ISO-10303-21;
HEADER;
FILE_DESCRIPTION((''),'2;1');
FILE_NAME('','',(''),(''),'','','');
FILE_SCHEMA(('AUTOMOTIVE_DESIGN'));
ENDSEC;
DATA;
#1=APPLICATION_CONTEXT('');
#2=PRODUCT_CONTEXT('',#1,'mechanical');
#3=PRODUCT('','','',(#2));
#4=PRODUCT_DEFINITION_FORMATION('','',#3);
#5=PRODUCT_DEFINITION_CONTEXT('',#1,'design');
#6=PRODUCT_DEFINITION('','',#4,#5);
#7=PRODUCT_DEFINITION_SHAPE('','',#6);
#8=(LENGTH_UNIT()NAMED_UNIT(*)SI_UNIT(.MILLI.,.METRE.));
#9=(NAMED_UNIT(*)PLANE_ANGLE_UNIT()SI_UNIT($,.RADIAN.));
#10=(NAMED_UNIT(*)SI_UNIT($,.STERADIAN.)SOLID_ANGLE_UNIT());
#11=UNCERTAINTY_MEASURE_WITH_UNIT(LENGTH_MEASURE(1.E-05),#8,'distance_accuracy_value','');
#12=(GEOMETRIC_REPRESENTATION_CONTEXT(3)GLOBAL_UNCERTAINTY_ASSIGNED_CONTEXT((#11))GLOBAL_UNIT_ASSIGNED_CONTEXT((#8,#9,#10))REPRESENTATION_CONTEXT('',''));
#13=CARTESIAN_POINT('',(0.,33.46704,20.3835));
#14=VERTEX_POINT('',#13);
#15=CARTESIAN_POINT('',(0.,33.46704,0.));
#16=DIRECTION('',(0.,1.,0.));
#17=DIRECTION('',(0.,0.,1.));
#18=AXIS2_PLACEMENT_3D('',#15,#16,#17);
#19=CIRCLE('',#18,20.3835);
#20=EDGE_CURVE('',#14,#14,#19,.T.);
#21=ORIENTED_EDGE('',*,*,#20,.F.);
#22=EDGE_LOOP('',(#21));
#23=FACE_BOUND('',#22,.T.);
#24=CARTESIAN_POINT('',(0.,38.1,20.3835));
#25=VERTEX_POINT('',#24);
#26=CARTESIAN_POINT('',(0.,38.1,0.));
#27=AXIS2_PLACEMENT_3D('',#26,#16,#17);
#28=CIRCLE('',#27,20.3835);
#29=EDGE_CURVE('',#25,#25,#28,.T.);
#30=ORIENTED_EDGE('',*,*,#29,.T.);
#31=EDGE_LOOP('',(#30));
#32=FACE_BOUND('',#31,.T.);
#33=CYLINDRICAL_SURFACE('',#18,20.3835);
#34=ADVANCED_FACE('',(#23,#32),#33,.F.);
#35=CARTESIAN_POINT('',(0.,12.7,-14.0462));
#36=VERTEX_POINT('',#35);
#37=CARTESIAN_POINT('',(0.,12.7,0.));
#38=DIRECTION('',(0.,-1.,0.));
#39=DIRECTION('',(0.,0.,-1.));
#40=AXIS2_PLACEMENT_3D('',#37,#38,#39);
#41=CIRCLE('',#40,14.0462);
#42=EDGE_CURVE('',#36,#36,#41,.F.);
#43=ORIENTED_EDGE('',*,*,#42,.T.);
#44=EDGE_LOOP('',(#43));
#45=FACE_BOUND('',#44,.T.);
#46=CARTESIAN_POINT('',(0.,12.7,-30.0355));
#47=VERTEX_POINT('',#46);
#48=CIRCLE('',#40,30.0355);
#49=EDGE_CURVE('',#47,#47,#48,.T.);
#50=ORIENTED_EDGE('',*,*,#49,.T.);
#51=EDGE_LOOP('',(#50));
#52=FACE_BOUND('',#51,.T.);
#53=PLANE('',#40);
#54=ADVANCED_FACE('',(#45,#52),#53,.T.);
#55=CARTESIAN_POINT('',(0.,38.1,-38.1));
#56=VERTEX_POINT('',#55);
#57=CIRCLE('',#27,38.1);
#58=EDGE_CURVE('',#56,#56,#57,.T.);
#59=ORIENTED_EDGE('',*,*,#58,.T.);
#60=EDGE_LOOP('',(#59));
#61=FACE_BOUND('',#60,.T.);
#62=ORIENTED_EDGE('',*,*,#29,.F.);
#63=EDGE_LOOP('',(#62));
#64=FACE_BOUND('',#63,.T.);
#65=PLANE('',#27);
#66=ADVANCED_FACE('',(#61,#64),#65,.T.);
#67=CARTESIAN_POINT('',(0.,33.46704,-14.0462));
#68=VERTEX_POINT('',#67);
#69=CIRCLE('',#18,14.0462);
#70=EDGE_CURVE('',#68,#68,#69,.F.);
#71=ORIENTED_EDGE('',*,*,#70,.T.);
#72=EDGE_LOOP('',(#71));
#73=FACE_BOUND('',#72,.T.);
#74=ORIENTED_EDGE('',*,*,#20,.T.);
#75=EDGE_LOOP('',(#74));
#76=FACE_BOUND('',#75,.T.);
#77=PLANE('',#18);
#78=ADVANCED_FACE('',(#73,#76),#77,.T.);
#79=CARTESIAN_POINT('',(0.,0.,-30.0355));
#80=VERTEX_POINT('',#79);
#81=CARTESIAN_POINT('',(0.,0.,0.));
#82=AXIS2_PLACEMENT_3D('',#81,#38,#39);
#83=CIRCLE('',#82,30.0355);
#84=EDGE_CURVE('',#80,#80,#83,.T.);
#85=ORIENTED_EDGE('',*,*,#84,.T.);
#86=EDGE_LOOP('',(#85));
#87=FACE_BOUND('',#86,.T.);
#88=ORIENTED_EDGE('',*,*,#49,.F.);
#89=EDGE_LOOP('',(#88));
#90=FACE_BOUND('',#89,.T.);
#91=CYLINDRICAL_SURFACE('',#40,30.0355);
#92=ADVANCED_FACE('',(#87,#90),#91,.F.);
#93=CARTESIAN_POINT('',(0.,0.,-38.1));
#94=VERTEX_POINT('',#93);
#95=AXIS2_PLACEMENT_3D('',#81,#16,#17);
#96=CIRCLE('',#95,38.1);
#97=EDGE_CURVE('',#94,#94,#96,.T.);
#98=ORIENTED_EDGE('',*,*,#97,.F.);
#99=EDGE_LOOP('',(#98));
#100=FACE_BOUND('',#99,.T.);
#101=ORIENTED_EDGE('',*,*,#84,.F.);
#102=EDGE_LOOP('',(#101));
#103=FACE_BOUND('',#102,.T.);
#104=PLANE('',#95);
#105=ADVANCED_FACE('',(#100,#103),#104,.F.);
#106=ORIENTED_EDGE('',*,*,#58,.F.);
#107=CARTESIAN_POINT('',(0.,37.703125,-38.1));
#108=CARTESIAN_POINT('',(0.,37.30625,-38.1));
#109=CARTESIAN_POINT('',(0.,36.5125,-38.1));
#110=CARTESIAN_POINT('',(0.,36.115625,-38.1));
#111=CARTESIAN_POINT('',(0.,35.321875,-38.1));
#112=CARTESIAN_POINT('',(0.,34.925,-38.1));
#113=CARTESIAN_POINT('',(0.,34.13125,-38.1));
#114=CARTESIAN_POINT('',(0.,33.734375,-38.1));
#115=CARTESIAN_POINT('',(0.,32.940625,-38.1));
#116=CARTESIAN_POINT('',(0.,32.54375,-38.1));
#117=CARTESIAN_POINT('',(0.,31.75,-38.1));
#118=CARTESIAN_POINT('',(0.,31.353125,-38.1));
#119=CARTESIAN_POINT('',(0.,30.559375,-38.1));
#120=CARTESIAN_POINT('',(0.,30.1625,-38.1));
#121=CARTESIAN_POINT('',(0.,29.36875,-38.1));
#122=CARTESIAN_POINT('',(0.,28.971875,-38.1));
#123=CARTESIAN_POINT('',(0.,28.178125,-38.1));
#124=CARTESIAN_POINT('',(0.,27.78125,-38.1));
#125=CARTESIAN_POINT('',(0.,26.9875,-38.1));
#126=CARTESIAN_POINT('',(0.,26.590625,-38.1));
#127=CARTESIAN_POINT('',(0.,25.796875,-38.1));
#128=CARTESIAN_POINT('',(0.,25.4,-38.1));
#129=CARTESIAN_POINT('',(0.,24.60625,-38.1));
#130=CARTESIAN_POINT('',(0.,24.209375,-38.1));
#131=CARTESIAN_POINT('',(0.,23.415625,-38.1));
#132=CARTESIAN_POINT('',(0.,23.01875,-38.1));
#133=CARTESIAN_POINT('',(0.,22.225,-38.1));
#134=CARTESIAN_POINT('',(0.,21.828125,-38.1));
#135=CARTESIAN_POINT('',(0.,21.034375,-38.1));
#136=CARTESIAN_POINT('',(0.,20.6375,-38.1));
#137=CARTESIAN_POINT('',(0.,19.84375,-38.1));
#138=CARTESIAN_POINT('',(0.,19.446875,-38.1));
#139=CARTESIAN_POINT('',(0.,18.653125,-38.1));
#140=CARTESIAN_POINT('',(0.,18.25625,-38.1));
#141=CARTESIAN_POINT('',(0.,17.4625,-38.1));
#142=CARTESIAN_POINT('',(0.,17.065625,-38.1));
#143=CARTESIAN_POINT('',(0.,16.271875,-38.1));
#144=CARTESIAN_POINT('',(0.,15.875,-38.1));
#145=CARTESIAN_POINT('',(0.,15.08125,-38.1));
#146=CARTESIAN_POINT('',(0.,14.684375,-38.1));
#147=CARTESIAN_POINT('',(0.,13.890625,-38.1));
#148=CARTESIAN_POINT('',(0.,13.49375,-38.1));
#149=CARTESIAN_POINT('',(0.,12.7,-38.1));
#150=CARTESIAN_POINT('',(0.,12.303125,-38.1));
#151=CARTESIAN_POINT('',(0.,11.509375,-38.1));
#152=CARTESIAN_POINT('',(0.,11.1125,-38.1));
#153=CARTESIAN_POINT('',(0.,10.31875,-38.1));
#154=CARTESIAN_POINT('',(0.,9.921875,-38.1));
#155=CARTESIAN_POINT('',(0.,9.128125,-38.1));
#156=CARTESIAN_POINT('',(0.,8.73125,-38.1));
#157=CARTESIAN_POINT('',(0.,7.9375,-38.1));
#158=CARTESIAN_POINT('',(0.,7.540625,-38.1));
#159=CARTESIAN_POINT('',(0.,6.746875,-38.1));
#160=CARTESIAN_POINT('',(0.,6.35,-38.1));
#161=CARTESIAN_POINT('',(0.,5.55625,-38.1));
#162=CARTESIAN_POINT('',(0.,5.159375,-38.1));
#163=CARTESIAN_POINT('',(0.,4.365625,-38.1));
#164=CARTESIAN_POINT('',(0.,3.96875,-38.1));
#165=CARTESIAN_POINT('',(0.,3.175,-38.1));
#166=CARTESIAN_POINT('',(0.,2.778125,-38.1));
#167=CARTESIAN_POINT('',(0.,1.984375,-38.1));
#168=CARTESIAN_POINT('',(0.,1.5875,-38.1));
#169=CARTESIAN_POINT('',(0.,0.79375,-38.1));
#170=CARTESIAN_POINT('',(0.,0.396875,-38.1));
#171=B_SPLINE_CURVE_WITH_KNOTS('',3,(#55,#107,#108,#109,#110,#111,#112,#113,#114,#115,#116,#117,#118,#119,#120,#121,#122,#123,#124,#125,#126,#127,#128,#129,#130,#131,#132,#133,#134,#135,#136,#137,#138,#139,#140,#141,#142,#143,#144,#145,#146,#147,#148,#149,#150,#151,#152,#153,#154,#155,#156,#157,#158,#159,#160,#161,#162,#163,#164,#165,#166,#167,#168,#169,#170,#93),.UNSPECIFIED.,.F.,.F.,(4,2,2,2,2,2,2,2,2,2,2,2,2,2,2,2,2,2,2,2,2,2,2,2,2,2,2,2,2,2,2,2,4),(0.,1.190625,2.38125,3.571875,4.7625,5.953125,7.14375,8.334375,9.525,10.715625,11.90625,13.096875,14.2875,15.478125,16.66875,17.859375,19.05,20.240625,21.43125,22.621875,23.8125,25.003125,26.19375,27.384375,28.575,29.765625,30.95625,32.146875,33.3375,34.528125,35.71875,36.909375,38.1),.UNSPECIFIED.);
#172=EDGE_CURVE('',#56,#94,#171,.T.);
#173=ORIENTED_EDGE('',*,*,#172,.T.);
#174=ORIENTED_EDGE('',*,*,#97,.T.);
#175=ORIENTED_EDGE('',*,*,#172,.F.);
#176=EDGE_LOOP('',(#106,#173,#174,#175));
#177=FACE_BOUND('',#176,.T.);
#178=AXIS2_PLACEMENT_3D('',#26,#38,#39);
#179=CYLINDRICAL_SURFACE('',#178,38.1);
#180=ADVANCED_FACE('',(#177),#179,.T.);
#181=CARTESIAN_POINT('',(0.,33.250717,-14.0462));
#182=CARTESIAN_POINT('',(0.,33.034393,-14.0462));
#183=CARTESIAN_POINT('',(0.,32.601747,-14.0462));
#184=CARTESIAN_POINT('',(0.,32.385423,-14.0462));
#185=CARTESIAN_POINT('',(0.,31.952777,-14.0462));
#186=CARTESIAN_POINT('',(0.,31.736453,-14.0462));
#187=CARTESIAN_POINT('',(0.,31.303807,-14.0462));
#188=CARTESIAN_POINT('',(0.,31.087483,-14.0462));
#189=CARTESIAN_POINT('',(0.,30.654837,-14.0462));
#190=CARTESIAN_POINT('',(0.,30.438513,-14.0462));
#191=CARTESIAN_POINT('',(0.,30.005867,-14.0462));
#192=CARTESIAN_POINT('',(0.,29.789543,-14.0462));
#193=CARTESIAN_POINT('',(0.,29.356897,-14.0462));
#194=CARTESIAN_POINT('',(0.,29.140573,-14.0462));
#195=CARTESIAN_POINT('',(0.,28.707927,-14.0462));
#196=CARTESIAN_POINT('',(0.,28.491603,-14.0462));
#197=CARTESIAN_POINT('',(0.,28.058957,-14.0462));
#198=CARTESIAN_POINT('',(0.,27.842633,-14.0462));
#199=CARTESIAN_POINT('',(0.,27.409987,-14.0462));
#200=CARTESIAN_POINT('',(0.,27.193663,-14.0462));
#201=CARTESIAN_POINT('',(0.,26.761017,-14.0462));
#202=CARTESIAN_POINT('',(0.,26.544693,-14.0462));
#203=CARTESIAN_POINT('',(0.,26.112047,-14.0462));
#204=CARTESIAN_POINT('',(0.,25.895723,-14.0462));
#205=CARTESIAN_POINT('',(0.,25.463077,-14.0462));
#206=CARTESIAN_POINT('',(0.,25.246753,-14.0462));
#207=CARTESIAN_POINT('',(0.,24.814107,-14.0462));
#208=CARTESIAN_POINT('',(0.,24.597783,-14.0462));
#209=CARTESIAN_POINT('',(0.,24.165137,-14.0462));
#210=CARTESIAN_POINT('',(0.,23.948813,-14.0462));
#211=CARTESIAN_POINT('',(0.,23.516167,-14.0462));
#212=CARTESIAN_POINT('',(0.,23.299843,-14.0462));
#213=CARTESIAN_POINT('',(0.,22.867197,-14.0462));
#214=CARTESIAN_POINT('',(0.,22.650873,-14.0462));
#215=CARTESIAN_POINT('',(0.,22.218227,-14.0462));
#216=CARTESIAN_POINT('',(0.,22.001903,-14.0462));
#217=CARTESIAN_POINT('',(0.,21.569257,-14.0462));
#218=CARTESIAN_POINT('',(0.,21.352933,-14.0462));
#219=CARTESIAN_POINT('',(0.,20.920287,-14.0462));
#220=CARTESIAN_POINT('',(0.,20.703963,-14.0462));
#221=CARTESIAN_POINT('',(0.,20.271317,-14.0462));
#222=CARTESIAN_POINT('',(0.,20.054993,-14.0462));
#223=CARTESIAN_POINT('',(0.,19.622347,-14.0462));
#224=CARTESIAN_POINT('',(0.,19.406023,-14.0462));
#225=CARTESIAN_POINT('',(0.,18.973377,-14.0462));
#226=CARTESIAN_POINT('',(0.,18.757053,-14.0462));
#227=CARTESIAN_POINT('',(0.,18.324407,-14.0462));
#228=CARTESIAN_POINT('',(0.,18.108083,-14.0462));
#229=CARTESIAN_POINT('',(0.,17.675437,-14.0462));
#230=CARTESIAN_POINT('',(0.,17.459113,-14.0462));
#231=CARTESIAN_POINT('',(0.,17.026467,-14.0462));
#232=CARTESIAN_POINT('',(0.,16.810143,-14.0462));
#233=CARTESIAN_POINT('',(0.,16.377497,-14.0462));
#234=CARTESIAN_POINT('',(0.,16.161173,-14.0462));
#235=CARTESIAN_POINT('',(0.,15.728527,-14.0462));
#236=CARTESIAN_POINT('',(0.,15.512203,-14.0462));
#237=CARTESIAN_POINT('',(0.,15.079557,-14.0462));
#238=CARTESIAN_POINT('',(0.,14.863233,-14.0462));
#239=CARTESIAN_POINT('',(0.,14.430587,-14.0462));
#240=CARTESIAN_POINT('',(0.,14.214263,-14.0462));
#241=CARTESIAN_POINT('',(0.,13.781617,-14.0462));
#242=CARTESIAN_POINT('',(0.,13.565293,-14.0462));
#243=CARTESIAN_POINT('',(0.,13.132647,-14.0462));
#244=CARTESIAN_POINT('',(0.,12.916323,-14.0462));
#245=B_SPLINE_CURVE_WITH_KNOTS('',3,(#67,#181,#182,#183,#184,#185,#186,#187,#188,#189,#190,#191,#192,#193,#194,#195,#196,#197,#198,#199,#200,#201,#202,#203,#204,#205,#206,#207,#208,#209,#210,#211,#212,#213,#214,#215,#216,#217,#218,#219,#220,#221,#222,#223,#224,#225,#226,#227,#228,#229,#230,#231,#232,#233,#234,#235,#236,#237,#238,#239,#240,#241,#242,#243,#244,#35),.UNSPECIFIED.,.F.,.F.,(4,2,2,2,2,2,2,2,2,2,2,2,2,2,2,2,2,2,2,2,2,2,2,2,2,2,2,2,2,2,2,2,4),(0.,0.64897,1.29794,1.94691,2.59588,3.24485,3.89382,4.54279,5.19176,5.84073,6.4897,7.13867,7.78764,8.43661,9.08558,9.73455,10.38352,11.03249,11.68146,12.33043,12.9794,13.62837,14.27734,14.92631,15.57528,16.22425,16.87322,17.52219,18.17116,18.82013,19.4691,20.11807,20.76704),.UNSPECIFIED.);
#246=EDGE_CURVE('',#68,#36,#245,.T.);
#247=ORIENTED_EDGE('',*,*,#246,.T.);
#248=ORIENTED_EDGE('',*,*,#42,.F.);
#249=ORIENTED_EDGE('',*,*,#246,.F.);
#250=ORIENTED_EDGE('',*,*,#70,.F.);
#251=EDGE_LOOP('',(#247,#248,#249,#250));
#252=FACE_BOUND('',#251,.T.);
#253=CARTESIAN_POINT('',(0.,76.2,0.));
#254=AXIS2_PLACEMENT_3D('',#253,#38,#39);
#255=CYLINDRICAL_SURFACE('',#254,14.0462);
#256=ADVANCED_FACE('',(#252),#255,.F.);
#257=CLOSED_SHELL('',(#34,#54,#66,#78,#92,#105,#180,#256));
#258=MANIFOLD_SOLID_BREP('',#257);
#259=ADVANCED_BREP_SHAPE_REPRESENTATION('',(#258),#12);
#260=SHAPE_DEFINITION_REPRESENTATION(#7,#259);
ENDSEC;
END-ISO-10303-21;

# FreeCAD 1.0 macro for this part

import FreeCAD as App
import Part
import Sketcher
from FreeCAD import Vector
Q = App.Units.Quantity

doc = App.newDocument("Part")
body = doc.addObject("PartDesign::Body", "Body")

sketch1 = doc.addObject("Sketcher::SketchObject", "Sketch")
body.addObject(sketch1)
sketch1.AttachmentSupport = (doc.XZ_Plane, [""])
sketch1.MapMode = "FlatFace"
sketch1.addGeometry(Part.Circle(Vector(0, 0, 0), Vector(0, 0, 1), 38), False)
sketch1.addConstraint([
    Sketcher.Constraint("Coincident", 0, 3, -1, 1),
    Sketcher.Constraint("Diameter", 0, Q("3 in")),
])
pad1 = doc.addObject("PartDesign::Pad", "Pad")
body.addObject(pad1)
pad1.Profile = sketch1
pad1.Length = Q("1.5 in")
pad1.Reversed = True

sketch2 = doc.addObject("Sketcher::SketchObject", "Sketch001")
body.addObject(sketch2)
sketch2.AttachmentSupport = (doc.XZ_Plane, [""])
sketch2.MapMode = "FlatFace"
sketch2.addGeometry(Part.Circle(Vector(0, 0, 0), Vector(0, 0, 1), 14), False)
sketch2.addConstraint([
    Sketcher.Constraint("Coincident", 0, 3, -1, 1),
    Sketcher.Constraint("Diameter", 0, Q("1.106 in")),
])
pocket1 = doc.addObject("PartDesign::Pocket", "Pocket")
body.addObject(pocket1)
pocket1.Profile = sketch2
pocket1.Length = Q("3 in")

sketch3 = doc.addObject("Sketcher::SketchObject", "Sketch002")
body.addObject(sketch3)
sketch3.AttachmentSupport = (doc.XZ_Plane, [""])
sketch3.MapMode = "FlatFace"
sketch3.AttachmentOffset = App.Placement(Vector(0, 0, -1.5 * 25.4), App.Rotation())
sketch3.addGeometry(Part.Circle(Vector(0, 0, 0), Vector(0, 0, 1), 20), False)
sketch3.addConstraint([
    Sketcher.Constraint("Coincident", 0, 3, -1, 1),
    Sketcher.Constraint("Diameter", 0, Q("1.605 in")),
])
pocket2 = doc.addObject("PartDesign::Pocket", "Pocket001")
body.addObject(pocket2)
pocket2.Profile = sketch3
pocket2.Length = Q("0.1824 in")
pocket2.Reversed = True

sketch4 = doc.addObject("Sketcher::SketchObject", "Sketch003")
body.addObject(sketch4)
sketch4.AttachmentSupport = (doc.XZ_Plane, [""])
sketch4.MapMode = "FlatFace"
sketch4.addGeometry(Part.Circle(Vector(0, 0, 0), Vector(0, 0, 1), 30), False)
sketch4.addConstraint([
    Sketcher.Constraint("Coincident", 0, 3, -1, 1),
    Sketcher.Constraint("Diameter", 0, Q("2.365 in")),
])
pocket3 = doc.addObject("PartDesign::Pocket", "Pocket002")
body.addObject(pocket3)
pocket3.Profile = sketch4
pocket3.Length = Q("0.5 in")

doc.recompute()
